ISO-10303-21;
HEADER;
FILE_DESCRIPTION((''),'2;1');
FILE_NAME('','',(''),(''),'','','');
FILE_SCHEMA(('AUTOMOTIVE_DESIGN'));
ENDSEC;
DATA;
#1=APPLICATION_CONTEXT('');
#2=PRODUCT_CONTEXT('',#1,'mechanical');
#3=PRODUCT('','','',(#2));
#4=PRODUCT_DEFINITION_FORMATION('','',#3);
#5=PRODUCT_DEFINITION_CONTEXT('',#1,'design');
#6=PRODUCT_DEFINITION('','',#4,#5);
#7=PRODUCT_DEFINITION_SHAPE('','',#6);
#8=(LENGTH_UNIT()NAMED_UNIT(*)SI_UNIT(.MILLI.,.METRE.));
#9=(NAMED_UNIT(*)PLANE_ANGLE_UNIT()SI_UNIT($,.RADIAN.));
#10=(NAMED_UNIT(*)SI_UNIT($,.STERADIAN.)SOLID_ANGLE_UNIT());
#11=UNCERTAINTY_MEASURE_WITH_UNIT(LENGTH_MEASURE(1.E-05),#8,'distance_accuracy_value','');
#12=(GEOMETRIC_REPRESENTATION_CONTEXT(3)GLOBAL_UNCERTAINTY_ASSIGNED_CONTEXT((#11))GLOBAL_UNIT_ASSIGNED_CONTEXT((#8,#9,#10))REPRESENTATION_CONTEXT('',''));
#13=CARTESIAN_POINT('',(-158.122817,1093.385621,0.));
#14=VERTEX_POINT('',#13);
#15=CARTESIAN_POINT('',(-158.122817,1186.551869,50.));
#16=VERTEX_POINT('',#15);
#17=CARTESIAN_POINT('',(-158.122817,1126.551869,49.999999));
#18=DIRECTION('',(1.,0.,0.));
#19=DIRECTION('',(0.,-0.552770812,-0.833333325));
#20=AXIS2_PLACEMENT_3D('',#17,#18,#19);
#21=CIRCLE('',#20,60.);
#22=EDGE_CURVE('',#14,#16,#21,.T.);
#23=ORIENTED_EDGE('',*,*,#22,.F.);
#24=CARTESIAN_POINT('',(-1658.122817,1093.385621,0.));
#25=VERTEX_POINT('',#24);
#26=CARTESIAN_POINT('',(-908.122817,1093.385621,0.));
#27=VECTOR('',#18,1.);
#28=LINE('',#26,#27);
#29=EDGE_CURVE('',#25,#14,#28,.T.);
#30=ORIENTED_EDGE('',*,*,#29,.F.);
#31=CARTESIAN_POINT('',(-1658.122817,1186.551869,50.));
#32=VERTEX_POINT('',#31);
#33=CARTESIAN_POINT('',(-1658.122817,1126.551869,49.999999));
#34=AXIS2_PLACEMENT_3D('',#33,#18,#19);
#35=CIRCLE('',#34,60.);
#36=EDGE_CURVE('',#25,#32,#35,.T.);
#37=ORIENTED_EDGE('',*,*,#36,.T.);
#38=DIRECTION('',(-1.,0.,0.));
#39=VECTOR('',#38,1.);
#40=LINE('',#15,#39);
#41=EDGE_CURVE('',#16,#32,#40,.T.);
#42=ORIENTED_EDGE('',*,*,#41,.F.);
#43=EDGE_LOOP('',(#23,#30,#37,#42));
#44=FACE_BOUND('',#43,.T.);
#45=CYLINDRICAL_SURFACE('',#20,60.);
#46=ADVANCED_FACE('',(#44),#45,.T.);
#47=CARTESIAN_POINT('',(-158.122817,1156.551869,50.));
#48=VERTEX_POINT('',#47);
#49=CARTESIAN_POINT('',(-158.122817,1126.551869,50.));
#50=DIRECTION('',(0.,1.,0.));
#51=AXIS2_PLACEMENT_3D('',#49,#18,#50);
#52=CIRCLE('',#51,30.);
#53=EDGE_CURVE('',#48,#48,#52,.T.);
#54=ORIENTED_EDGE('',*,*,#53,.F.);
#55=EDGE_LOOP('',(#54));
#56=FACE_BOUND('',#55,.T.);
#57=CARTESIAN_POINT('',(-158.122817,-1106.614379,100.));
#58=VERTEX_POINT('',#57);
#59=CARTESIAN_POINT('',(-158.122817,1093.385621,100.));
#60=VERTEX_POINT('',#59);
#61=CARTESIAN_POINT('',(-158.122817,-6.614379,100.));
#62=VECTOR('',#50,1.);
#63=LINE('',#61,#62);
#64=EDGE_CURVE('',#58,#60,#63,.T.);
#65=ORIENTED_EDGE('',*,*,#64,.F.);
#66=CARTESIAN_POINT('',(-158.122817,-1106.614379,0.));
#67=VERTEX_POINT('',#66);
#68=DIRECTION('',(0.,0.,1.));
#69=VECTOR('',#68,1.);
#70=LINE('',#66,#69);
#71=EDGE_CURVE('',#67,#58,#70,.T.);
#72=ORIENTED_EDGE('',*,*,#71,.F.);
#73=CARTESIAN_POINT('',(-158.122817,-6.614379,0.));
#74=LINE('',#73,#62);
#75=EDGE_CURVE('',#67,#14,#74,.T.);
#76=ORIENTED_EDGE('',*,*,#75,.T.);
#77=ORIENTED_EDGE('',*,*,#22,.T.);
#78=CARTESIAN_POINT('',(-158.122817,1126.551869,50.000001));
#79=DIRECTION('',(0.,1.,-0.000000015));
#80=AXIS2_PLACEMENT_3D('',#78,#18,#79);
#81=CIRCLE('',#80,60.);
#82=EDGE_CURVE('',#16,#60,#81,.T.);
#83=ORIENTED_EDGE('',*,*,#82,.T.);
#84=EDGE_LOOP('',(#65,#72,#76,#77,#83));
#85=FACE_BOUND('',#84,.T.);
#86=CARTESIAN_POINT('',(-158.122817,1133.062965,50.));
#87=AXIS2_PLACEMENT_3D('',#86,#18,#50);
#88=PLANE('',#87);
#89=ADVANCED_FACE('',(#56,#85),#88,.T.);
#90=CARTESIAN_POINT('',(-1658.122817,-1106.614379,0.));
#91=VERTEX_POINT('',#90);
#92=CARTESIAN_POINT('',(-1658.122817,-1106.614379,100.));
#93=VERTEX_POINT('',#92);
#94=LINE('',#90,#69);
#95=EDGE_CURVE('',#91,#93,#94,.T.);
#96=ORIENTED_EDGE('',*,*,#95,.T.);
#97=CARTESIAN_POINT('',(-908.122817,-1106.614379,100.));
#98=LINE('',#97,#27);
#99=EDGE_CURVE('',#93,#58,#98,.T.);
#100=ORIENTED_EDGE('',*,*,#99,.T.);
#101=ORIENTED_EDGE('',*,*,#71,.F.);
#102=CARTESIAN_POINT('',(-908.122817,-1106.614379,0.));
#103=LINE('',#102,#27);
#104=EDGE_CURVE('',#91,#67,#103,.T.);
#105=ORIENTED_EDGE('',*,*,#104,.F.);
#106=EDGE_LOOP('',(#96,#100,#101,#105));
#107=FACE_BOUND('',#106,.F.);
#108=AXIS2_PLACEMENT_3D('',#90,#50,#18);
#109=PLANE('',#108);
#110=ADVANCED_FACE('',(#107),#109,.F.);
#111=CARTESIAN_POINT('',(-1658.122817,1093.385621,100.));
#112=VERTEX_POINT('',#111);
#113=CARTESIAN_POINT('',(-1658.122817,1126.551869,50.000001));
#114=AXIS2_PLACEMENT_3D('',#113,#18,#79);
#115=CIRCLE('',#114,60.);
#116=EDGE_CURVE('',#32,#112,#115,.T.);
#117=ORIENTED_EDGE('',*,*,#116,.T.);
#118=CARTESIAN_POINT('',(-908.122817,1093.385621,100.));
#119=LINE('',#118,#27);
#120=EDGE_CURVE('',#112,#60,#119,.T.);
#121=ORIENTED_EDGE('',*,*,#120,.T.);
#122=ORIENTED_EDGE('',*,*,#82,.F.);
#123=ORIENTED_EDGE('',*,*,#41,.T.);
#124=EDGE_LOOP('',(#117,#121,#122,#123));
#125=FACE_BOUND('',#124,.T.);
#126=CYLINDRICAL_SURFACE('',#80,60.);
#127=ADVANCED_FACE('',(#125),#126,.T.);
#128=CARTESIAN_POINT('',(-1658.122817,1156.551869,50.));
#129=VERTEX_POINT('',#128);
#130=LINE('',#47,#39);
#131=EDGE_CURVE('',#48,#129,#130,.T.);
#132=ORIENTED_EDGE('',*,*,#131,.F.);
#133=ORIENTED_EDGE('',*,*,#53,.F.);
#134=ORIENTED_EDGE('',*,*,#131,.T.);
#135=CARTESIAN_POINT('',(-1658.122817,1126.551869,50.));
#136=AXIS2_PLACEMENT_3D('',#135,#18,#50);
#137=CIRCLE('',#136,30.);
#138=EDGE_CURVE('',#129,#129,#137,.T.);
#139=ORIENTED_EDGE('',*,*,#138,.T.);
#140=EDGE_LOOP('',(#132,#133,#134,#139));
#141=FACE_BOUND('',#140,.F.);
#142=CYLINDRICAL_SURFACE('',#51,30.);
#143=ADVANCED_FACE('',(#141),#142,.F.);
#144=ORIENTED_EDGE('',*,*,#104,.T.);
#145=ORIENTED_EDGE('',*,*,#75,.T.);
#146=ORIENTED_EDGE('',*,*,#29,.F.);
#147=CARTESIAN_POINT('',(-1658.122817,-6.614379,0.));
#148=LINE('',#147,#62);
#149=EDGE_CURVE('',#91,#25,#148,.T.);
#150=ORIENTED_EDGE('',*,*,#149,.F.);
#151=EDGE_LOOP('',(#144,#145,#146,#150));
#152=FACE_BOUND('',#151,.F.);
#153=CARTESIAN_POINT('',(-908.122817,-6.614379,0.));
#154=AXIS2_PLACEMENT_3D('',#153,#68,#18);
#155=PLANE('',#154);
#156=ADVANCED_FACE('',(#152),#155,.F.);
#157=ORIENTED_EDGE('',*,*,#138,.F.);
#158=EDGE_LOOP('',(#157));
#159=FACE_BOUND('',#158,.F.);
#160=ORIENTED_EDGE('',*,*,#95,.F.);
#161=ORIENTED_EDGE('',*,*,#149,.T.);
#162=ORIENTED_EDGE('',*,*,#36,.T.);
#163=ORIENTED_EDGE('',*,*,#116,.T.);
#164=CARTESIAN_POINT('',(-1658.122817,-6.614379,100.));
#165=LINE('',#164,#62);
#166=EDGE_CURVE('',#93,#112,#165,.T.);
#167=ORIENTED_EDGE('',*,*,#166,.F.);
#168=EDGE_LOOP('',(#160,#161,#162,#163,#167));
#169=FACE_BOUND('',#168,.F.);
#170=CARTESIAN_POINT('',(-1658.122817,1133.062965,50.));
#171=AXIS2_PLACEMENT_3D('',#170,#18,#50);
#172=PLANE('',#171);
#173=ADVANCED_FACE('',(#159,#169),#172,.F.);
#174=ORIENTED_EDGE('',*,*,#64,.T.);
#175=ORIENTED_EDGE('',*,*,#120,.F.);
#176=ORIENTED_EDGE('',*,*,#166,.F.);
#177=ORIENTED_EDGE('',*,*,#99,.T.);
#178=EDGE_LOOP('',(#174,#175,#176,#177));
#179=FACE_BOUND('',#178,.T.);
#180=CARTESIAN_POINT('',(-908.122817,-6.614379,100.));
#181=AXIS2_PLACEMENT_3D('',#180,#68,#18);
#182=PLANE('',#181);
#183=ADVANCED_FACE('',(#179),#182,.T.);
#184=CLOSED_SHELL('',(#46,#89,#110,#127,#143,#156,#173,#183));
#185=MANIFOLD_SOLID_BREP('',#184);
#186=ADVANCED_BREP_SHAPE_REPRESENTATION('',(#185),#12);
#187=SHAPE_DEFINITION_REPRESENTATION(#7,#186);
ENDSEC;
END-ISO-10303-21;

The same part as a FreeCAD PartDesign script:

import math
import FreeCAD as App
import Part
import Sketcher

V = App.Vector

doc = App.newDocument("Part")
body = doc.addObject("PartDesign::Body", "Body")

sketch1 = body.newObject("Sketcher::SketchObject", "Sketch")
sketch1.AttachmentSupport = (doc.getObject("XY_Plane"), [""])
sketch1.MapMode = "FlatFace"
sketch1.addGeometry([
    Part.LineSegment(V(-1658, 1093, 0), V(-1658, -1107, 0)),
    Part.LineSegment(V(-1658, -1107, 0), V(-158, -1107, 0)),
    Part.LineSegment(V(-158, -1107, 0), V(-158, 1093, 0)),
    Part.LineSegment(V(-158, 1093, 0), V(-1658, 1093, 0)),
], False)
sketch1.addConstraint([
    Sketcher.Constraint("Coincident", 0, 2, 1, 1),
    Sketcher.Constraint("Coincident", 1, 2, 2, 1),
    Sketcher.Constraint("Coincident", 2, 2, 3, 1),
    Sketcher.Constraint("Coincident", 3, 2, 0, 1),
    Sketcher.Constraint("Vertical", 0),
    Sketcher.Constraint("Horizontal", 1),
    Sketcher.Constraint("Vertical", 2),
    Sketcher.Constraint("Horizontal", 3),
    Sketcher.Constraint("DistanceX", 1, 1, 1, 2, 1500.0),
    Sketcher.Constraint("DistanceY", 0, 2, 0, 1, 2200.0),
    Sketcher.Constraint("DistanceY", 0, 2, -1, 1, 1106.614379),
    Sketcher.Constraint("DistanceX", 0, 2, -1, 1, 1658.122817),
])
pad1 = body.newObject("PartDesign::Pad", "Pad")
pad1.Profile = sketch1
pad1.Length = 100

sketch2 = body.newObject("Sketcher::SketchObject", "Sketch001")
sketch2.AttachmentSupport = (doc.getObject("YZ_Plane"), [""])
sketch2.MapMode = "FlatFace"
sketch2.AttachmentOffset = App.Placement(V(0, 0, -158.122817), App.Rotation())
sketch2.addGeometry([
    Part.ArcOfCircle(Part.Circle(V(1127, 50, 0), V(0, 0, 1), 60), math.radians(-124), math.radians(0)),
    Part.ArcOfCircle(Part.Circle(V(1127, 50, 0), V(0, 0, 1), 60), math.radians(0), math.radians(124)),
    Part.LineSegment(V(1093, 100, 0), V(1093, 0, 0)),
    Part.Circle(V(1127, 50, 0), V(0, 0, 1), 30),
], False)
sketch2.addConstraint([
    Sketcher.Constraint("Tangent", 0, 2, 1, 1),
    Sketcher.Constraint("Coincident", 1, 2, 2, 1),
    Sketcher.Constraint("Coincident", 2, 2, 0, 1),
    Sketcher.Constraint("Vertical", 2),
    Sketcher.Constraint("Coincident", 3, 3, 0, 3),
    Sketcher.Constraint("Equal", 0, 1),
    Sketcher.Constraint("PointOnObject", 2, 2, -1),
    Sketcher.Constraint("Horizontal", 3, 3, 0, 2),
    Sketcher.Constraint("Diameter", 3, 60.0),
    Sketcher.Constraint("Radius", 0, 60.0),
    Sketcher.Constraint("DistanceY", 2, 2, 2, 1, 100.0),
    Sketcher.Constraint("DistanceX", -1, 1, 0, 3, 1126.551869),
])
pad2 = body.newObject("PartDesign::Pad", "Pad001")
pad2.Profile = sketch2
pad2.Length = 1500
pad2.Reversed = True

doc.recompute()
